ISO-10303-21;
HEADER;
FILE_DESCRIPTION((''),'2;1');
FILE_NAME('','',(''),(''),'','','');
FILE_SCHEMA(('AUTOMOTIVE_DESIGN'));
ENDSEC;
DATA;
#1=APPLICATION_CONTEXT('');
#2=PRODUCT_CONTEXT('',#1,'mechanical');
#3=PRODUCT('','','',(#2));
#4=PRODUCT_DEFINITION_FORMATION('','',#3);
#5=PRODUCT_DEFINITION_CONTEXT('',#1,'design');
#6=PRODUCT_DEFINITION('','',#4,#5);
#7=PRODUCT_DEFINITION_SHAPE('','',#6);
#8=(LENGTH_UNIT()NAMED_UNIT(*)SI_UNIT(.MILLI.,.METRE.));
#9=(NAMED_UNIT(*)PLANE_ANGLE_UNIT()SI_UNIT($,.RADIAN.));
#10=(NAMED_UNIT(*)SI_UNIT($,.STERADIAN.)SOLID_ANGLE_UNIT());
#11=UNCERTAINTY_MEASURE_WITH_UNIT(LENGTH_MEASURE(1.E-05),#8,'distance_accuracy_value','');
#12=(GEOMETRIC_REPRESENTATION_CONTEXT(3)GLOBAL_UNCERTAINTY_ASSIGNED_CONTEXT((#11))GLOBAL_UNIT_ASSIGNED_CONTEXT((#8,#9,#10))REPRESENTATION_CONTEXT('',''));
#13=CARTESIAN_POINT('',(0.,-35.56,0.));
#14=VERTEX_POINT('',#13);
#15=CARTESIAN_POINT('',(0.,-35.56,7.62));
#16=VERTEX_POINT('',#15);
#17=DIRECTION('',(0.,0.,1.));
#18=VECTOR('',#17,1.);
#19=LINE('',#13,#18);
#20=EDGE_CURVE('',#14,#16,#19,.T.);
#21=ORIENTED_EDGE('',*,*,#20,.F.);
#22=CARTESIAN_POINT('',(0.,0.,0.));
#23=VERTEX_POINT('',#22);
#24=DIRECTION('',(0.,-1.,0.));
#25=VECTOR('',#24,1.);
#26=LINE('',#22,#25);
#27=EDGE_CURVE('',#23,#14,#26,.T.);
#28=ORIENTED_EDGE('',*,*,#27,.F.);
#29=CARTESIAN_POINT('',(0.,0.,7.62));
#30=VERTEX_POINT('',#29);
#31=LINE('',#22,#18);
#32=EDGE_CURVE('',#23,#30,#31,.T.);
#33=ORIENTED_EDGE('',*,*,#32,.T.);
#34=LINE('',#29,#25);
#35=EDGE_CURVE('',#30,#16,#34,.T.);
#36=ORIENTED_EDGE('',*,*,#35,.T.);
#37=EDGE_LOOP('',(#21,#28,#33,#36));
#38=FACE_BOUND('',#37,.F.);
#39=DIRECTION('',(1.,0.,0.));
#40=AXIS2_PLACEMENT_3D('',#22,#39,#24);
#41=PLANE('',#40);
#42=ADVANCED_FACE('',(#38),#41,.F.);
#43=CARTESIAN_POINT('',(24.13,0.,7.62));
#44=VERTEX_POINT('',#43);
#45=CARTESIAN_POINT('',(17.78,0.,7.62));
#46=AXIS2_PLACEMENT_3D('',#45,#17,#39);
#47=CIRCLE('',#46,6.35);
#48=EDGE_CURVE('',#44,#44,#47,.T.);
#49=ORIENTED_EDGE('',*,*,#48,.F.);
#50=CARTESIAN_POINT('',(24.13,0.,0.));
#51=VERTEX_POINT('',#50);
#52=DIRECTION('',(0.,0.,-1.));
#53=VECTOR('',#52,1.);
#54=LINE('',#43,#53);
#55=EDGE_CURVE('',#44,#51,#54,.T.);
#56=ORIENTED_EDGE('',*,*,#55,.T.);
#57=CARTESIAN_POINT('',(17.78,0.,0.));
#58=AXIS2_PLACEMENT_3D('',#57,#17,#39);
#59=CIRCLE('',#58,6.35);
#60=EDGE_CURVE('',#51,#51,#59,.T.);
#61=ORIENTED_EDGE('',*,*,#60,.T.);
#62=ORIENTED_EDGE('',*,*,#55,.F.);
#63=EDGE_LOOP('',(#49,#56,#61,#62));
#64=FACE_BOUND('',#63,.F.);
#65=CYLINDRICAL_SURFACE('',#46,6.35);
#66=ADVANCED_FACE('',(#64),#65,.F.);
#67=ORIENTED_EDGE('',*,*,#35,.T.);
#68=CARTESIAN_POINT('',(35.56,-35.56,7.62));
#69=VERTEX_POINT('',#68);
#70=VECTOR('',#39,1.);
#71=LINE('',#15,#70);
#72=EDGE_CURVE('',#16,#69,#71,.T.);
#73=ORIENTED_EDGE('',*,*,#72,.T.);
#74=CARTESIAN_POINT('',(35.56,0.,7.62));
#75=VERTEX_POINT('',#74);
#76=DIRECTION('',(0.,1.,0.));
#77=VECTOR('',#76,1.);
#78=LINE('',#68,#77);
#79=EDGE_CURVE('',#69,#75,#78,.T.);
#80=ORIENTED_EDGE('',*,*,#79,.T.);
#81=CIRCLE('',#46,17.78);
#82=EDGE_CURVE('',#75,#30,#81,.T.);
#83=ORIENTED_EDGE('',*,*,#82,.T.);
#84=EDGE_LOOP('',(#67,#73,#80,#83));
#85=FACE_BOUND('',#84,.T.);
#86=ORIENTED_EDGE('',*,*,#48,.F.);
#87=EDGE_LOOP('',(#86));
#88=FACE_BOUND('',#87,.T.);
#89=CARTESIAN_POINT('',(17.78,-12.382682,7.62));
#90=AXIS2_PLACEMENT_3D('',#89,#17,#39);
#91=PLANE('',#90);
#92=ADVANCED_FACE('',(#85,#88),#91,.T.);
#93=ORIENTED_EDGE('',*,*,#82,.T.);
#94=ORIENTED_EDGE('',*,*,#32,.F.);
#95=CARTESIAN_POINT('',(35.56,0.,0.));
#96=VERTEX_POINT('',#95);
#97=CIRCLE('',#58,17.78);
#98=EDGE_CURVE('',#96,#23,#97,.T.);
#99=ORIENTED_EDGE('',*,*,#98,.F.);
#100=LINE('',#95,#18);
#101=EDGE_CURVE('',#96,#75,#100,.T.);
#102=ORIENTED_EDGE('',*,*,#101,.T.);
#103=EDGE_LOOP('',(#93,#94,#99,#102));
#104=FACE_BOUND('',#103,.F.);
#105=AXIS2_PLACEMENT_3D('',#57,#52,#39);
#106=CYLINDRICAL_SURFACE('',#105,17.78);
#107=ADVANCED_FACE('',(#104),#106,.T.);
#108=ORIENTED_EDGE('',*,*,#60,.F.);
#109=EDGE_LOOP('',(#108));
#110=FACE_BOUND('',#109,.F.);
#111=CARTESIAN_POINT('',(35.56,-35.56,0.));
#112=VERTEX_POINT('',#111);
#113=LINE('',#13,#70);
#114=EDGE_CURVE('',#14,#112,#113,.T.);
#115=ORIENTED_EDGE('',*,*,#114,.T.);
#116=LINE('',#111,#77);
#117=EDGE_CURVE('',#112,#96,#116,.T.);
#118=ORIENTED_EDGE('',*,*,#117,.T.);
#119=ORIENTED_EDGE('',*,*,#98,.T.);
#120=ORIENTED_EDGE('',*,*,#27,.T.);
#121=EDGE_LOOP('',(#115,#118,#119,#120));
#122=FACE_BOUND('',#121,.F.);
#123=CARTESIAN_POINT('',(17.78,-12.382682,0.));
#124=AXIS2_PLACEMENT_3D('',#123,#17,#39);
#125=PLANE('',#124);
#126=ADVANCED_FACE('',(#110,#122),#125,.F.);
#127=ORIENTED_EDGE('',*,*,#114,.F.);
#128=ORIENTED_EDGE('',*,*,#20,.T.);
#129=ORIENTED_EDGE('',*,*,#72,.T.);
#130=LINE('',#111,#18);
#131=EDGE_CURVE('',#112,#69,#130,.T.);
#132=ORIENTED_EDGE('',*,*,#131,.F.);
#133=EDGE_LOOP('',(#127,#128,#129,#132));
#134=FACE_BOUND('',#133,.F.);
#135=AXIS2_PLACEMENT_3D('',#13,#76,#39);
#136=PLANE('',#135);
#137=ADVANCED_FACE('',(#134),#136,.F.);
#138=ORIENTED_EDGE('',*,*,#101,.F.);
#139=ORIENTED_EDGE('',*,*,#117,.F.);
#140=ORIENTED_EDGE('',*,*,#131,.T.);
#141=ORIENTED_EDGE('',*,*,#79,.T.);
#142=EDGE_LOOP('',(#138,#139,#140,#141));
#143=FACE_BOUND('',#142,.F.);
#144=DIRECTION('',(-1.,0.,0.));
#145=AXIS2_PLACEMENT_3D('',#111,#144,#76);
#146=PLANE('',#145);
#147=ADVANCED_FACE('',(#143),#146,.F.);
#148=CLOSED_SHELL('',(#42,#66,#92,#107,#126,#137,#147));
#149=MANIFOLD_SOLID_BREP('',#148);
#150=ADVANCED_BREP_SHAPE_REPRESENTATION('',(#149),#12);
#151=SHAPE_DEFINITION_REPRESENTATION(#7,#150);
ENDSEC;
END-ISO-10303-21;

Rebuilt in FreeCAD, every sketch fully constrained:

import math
import FreeCAD as App
import Part
import Sketcher
from FreeCAD import Vector
Q = App.Units.Quantity

doc = App.newDocument("Part")
params = doc.addObject("Spreadsheet::Sheet", "Params")
for row, (alias, value) in enumerate([
    ("sketch1_radius", "0.7 in"),
    ("pad1_length", "0.3 in"),
    ("sketch2_diameter", "0.5 in"),
    ("pocket1_length", "1 in"),
], start=1):
    params.set(f"A{row}", alias)
    params.set(f"B{row}", "=" + value)
    params.setAlias(f"B{row}", alias)

body = doc.addObject("PartDesign::Body", "Body")

# Sketch on XY plane
sketch1 = body.newObject("Sketcher::SketchObject", "Sketch")
sketch1.AttachmentSupport = (doc.getObject("XY_Plane"), [""])
sketch1.MapMode = "FlatFace"
sketch1.addGeometry(Part.LineSegment(Vector(0, 0, 0), Vector(0, -36, 0)), False)
sketch1.addGeometry(Part.LineSegment(Vector(0, -36, 0), Vector(36, -36, 0)), False)
sketch1.addGeometry(Part.LineSegment(Vector(36, -36, 0), Vector(36, 0, 0)), False)
sketch1.addGeometry(Part.ArcOfCircle(Part.Circle(Vector(18, 0, 0), Vector(0, 0, 1), 18), math.radians(0), math.radians(180)), False)
sketch1.addConstraint(Sketcher.Constraint("Coincident", 0, 2, 1, 1))
sketch1.addConstraint(Sketcher.Constraint("Coincident", 1, 2, 2, 1))
sketch1.addConstraint(Sketcher.Constraint("Tangent", 2, 2, 3, 1))
sketch1.addConstraint(Sketcher.Constraint("Tangent", 3, 2, 0, 1))
sketch1.addConstraint(Sketcher.Constraint("Vertical", 0))
sketch1.addConstraint(Sketcher.Constraint("Horizontal", 1))
sketch1.addConstraint(Sketcher.Constraint("Vertical", 2))
sketch1.addConstraint(Sketcher.Constraint("Coincident", 3, 2, -1, 1))
sketch1.addConstraint(Sketcher.Constraint("Equal", 1, 0))
sketch1.addConstraint(Sketcher.Constraint("Radius", 3, Q("0.7 in")))
sketch1.setExpression("Constraints[9]", "Params.sketch1_radius")
pad1 = body.newObject("PartDesign::Pad", "Pad")
pad1.Profile = sketch1
pad1.setExpression("Length", "Params.pad1_length")

# Sketch on XY plane
sketch2 = body.newObject("Sketcher::SketchObject", "Sketch001")
sketch2.AttachmentSupport = (doc.getObject("XY_Plane"), [""])
sketch2.MapMode = "FlatFace"
sketch2.AttachmentOffset = App.Placement(Vector(0, 0, 0.3 * 25.4), App.Rotation())
sketch2.addGeometry(Part.Circle(Vector(18, 0, 0), Vector(0, 0, 1), 6), False)
sketch2.addConstraint(Sketcher.Constraint("PointOnObject", 0, 3, -1))
sketch2.addConstraint(Sketcher.Constraint("Diameter", 0, Q("0.5 in")))
sketch2.addConstraint(Sketcher.Constraint("DistanceX", -1, 1, 0, 3, Q("0.7 in")))
sketch2.setExpression("Constraints[1]", "Params.sketch2_diameter")
pocket1 = body.newObject("PartDesign::Pocket", "Pocket")
pocket1.Profile = sketch2
pocket1.setExpression("Length", "Params.pocket1_length")

doc.recompute()
